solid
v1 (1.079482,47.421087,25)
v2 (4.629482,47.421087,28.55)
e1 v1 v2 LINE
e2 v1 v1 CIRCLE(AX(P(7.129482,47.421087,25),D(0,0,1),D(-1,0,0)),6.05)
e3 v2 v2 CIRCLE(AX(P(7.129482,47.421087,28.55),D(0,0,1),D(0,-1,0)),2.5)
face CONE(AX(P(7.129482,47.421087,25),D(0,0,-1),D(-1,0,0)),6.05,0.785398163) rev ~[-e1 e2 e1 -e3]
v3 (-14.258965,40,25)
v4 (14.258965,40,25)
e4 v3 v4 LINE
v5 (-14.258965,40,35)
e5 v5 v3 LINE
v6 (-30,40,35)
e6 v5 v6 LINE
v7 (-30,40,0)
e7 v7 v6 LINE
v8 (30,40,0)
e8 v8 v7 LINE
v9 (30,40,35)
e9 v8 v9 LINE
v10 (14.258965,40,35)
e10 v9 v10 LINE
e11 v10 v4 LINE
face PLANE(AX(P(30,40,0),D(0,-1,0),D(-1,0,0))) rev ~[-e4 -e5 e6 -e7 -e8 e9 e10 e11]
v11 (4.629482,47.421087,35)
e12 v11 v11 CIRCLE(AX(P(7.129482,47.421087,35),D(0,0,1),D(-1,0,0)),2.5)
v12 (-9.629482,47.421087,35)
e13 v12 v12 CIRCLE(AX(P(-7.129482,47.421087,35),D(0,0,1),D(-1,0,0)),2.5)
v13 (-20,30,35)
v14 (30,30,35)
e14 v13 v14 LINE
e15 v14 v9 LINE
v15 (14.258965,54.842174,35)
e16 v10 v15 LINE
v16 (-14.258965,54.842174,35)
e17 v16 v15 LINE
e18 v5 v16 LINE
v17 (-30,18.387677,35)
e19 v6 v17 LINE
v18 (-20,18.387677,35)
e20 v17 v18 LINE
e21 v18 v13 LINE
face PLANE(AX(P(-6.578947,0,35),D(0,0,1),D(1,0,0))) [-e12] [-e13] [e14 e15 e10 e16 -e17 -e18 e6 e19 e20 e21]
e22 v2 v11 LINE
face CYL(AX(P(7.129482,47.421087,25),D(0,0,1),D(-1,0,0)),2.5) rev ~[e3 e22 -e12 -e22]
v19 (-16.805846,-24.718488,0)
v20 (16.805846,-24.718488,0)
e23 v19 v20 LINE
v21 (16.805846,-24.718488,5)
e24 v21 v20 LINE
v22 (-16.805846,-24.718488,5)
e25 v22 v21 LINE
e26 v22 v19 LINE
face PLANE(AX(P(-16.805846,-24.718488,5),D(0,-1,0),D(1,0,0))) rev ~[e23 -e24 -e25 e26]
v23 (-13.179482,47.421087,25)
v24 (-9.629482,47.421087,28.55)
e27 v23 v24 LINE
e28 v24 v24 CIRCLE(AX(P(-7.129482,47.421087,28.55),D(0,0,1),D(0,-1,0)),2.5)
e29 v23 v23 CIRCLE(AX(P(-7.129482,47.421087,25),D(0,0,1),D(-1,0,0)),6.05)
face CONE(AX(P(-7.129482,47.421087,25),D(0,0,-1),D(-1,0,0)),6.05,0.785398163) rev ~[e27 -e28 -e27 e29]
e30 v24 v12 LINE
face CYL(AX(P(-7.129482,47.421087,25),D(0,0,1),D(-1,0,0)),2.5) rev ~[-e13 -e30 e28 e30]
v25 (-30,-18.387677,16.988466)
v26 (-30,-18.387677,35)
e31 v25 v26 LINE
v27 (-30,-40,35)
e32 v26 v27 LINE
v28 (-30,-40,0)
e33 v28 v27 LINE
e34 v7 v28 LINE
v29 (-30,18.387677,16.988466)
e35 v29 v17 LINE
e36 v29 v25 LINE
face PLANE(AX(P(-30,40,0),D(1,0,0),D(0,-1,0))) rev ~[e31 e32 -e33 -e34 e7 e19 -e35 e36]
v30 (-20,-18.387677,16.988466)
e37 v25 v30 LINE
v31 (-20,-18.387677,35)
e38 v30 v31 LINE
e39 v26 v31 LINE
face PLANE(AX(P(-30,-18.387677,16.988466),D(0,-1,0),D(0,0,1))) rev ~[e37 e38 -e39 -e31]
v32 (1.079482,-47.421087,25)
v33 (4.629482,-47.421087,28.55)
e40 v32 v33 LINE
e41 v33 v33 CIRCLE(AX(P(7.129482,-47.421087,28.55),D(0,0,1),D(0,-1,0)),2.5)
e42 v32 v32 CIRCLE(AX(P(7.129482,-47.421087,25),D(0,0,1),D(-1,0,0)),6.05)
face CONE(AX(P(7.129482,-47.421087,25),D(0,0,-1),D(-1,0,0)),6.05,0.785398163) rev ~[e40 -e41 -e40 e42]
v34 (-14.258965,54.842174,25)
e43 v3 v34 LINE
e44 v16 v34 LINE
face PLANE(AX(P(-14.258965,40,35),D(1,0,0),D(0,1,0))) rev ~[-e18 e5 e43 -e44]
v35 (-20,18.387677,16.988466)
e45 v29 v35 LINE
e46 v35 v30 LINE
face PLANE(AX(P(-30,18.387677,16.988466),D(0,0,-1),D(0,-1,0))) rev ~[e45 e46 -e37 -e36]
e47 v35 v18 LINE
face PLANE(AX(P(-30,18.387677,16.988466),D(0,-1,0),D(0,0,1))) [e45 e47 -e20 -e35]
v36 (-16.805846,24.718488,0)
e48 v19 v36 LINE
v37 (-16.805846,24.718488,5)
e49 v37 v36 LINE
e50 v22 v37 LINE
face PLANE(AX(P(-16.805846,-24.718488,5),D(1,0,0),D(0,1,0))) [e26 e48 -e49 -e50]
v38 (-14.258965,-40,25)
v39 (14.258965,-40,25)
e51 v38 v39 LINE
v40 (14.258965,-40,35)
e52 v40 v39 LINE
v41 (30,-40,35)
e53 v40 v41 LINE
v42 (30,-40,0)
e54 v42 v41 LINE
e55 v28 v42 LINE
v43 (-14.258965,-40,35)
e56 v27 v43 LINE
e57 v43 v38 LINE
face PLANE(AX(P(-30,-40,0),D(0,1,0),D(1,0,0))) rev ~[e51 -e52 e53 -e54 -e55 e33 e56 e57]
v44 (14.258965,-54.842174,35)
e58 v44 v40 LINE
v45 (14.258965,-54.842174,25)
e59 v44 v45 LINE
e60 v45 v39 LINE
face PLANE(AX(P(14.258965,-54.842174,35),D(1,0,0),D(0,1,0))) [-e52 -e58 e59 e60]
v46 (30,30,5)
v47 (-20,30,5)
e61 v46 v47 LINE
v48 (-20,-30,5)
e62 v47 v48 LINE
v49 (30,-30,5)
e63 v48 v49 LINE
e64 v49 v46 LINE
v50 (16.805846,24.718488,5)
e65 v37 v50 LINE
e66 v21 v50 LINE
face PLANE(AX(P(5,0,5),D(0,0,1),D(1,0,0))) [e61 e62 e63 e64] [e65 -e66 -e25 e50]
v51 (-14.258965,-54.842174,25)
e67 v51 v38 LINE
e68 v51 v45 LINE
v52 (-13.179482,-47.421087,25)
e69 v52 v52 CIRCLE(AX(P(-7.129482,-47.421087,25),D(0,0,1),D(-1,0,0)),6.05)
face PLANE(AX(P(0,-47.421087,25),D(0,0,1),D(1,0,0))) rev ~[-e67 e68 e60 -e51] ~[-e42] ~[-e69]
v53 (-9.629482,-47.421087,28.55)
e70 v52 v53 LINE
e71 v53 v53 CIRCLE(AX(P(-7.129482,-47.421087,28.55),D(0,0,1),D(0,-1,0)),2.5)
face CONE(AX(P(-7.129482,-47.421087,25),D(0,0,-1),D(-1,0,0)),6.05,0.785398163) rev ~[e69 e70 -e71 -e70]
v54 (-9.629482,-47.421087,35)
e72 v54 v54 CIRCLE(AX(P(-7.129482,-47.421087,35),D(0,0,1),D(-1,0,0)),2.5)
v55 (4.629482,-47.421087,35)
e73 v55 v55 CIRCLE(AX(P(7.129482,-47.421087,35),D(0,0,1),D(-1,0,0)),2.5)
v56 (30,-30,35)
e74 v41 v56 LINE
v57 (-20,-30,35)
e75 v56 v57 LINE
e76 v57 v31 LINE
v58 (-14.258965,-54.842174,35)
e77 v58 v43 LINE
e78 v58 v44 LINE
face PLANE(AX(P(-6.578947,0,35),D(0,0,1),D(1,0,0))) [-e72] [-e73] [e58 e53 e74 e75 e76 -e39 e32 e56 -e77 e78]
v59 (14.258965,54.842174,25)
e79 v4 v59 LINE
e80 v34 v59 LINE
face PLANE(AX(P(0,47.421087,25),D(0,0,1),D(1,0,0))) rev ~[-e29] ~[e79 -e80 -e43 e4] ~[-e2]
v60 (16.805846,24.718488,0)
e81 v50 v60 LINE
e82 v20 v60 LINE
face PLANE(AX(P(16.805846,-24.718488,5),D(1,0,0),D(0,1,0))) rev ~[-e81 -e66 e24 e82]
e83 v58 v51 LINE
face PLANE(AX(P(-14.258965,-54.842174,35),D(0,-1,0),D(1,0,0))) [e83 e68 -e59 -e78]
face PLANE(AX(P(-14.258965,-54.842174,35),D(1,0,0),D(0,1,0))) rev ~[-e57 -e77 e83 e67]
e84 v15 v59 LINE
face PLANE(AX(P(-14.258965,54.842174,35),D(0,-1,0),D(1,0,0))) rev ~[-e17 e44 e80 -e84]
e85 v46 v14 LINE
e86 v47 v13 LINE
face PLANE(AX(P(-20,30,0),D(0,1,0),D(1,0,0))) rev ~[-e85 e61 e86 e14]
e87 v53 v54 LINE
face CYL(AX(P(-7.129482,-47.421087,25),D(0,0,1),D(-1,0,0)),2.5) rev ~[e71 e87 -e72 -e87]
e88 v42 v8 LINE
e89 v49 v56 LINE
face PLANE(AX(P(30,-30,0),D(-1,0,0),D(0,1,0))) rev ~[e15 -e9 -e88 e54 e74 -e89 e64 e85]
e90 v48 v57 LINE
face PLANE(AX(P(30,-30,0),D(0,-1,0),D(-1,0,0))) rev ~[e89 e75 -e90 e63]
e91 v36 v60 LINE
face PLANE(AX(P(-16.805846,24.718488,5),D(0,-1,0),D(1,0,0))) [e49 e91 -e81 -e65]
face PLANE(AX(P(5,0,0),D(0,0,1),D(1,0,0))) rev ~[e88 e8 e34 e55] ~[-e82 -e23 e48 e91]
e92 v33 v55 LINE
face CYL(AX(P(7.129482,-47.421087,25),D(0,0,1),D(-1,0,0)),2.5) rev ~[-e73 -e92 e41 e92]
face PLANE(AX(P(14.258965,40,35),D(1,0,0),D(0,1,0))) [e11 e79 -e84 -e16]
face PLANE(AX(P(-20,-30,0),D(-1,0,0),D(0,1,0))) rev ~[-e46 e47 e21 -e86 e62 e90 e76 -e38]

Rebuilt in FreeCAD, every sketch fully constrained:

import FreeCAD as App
import Part
import Sketcher
Q = App.Units.Quantity


def add_polygon(sketch, points):
    """Adds a closed chain of lines whose ends are joined by coincident constraints."""
    first, n = sketch.GeometryCount, len(points)
    for a, b in zip(points, points[1:] + points[:1]):
        sketch.addGeometry(Part.LineSegment(App.Vector(*a, 0), App.Vector(*b, 0)), False)
    for i in range(n):
        sketch.addConstraint(Sketcher.Constraint("Coincident", first + i, 2, first + (i + 1) % n, 1))

doc = App.newDocument("Part")
body = doc.addObject("PartDesign::Body", "Body")

sketch1 = body.newObject("Sketcher::SketchObject", "Sketch")
sketch1.AttachmentSupport = (doc.getObject("XY_Plane"), [""])
sketch1.MapMode = "FlatFace"
add_polygon(sketch1, [(-20, 30), (30, 30), (30, 40), (-30, 40), (-30, -40), (30, -40), (30, -30), (-20, -30)])
sketch1.addConstraint([
    Sketcher.Constraint("Horizontal", 0),
    Sketcher.Constraint("Vertical", 1),
    Sketcher.Constraint("Horizontal", 2),
    Sketcher.Constraint("Vertical", 3),
    Sketcher.Constraint("Horizontal", 4),
    Sketcher.Constraint("Vertical", 5),
    Sketcher.Constraint("Horizontal", 6),
    Sketcher.Constraint("Vertical", 7),
    Sketcher.Constraint("Symmetric", 1, 2, 3, 2, -1, 1),
    Sketcher.Constraint("Symmetric", 0, 2, 5, 2, -1),
    Sketcher.Constraint("Equal", 4, 7),
    Sketcher.Constraint("DistanceX", 0, 1, 0, 2, Q("50 mm")),
    Sketcher.Constraint("DistanceX", 2, 2, 2, 1, Q("60 mm")),
    Sketcher.Constraint("DistanceY", 1, 1, 1, 2, Q("10 mm")),
])
pad1 = body.newObject("PartDesign::Pad", "Pad")
pad1.Profile = sketch1
pad1.Length = 35

sketch2 = body.newObject("Sketcher::SketchObject", "Sketch001")
sketch2.AttachmentSupport = (doc.getObject("XY_Plane"), [""])
sketch2.MapMode = "FlatFace"
add_polygon(sketch2, [(30, 30), (-20, 30), (-20, -30), (30, -30)])
sketch2.addConstraint([
    Sketcher.Constraint("Horizontal", 0),
    Sketcher.Constraint("Vertical", 1),
    Sketcher.Constraint("Horizontal", 2),
    Sketcher.Constraint("Vertical", 3),
    Sketcher.Constraint("DistanceX", 0, 2, 0, 1, Q("50 mm")),
    Sketcher.Constraint("DistanceY", 1, 2, 1, 1, Q("60 mm")),
    Sketcher.Constraint("DistanceX", 0, 2, -1, 1, Q("20 mm")),
    Sketcher.Constraint("DistanceY", -1, 1, 0, 2, Q("30 mm")),
])
pad2 = body.newObject("PartDesign::Pad", "Pad001")
pad2.Profile = sketch2
pad2.Length = 5

sketch3 = body.newObject("Sketcher::SketchObject", "Sketch002")
sketch3.AttachmentSupport = (doc.getObject("XY_Plane"), [""])
sketch3.MapMode = "FlatFace"
sketch3.AttachmentOffset = App.Placement(App.Vector(0, 0, 5), App.Rotation())
add_polygon(sketch3, [(-17, 25), (-17, -25), (17, -25), (17, 25)])
sketch3.addConstraint([
    Sketcher.Constraint("Vertical", 0),
    Sketcher.Constraint("Horizontal", 1),
    Sketcher.Constraint("Vertical", 2),
    Sketcher.Constraint("Horizontal", 3),
    Sketcher.Constraint("Symmetric", 0, 2, 2, 2, -1, 1),
    Sketcher.Constraint("DistanceX", 1, 1, 1, 2, Q("33.611692 mm")),
    Sketcher.Constraint("DistanceY", 0, 2, 0, 1, Q("49.436976 mm")),
])
pocket1 = body.newObject("PartDesign::Pocket", "Pocket")
pocket1.Profile = sketch3
pocket1.Length = 25

sketch4 = body.newObject("Sketcher::SketchObject", "Sketch003")
sketch4.AttachmentSupport = (doc.getObject("XY_Plane"), [""])
sketch4.MapMode = "FlatFace"
sketch4.AttachmentOffset = App.Placement(App.Vector(0, 0, 35), App.Rotation())
add_polygon(sketch4, [(-14, -40), (-14, -55), (14, -55), (14, -40)])
add_polygon(sketch4, [(-14, 55), (-14, 40), (14, 40), (14, 55)])
sketch4.addConstraint([
    Sketcher.Constraint("Vertical", 0),
    Sketcher.Constraint("Horizontal", 1),
    Sketcher.Constraint("Vertical", 2),
    Sketcher.Constraint("Horizontal", 3),
    Sketcher.Constraint("Vertical", 4),
    Sketcher.Constraint("Horizontal", 5),
    Sketcher.Constraint("Vertical", 6),
    Sketcher.Constraint("Horizontal", 7),
    Sketcher.Constraint("Symmetric", 2, 2, 4, 2, -1, 1),
    Sketcher.Constraint("Symmetric", 0, 2, 6, 2, -1, 1),
    Sketcher.Constraint("Vertical", 3, 2, 4, 2),
    Sketcher.Constraint("DistanceY", 2, 2, -1, 1, Q("40 mm")),
    Sketcher.Constraint("DistanceX", 1, 1, 1, 2, Q("28.51793 mm")),
    Sketcher.Constraint("DistanceY", 0, 2, 0, 1, Q("14.842174 mm")),
])
pad3 = body.newObject("PartDesign::Pad", "Pad002")
pad3.Profile = sketch4
pad3.Length = 10
pad3.Reversed = True

sketch5 = body.newObject("Sketcher::SketchObject", "Sketch004")
sketch5.AttachmentSupport = (doc.getObject("XY_Plane"), [""])
sketch5.MapMode = "FlatFace"
sketch5.AttachmentOffset = App.Placement(App.Vector(0, 0, 25), App.Rotation())
sketch5.addGeometry([
    Part.Circle(App.Vector(7.1, -47.4, 0), App.Vector(0, 0, 1), 2.5),
    Part.Circle(App.Vector(-7.1, -47.4, 0), App.Vector(0, 0, 1), 2.5),
    Part.Circle(App.Vector(-7.1, 47.4, 0), App.Vector(0, 0, 1), 2.5),
    Part.Circle(App.Vector(7.1, 47.4, 0), App.Vector(0, 0, 1), 2.5),
], False)
sketch5.addConstraint([
    Sketcher.Constraint("Equal", 0, 1),
    Sketcher.Constraint("Equal", 1, 2),
    Sketcher.Constraint("Equal", 2, 3),
    Sketcher.Constraint("Symmetric", 0, 3, 2, 3, -1, 1),
    Sketcher.Constraint("Symmetric", 1, 3, 3, 3, -1, 1),
    Sketcher.Constraint("Symmetric", 0, 3, 1, 3, -2),
    Sketcher.Constraint("Diameter", 0, Q("5 mm")),
    Sketcher.Constraint("DistanceX", -1, 1, 0, 3, Q("7.129482 mm")),
    Sketcher.Constraint("DistanceY", 0, 3, -1, 1, Q("47.421087 mm")),
])
doc.recompute()
hole = body.newObject("PartDesign::Hole", "Hole")
hole.Profile = sketch5
hole.ThreadType = "None"
hole.Diameter = 5
hole.DepthType = "ThroughAll"
hole.HoleCutType = "Countersink"
hole.HoleCutDiameter = 12.1
hole.HoleCutCountersinkAngle = 90
hole.Reversed = True

sketch6 = body.newObject("Sketcher::SketchObject", "Sketch005")
sketch6.AttachmentSupport = (doc.getObject("YZ_Plane"), [""])
sketch6.MapMode = "FlatFace"
sketch6.AttachmentOffset = App.Placement(App.Vector(0, 0, -30), App.Rotation())
add_polygon(sketch6, [(18, 53), (18, 17), (-18, 17), (-18, 53)])
sketch6.addConstraint([
    Sketcher.Constraint("Vertical", 0),
    Sketcher.Constraint("Horizontal", 1),
    Sketcher.Constraint("Vertical", 2),
    Sketcher.Constraint("Horizontal", 3),
    Sketcher.Constraint("DistanceX", 1, 2, 1, 1, Q("36.775354 mm")),
    Sketcher.Constraint("DistanceY", 0, 2, 0, 1, Q("36.023068 mm")),
    Sketcher.Constraint("DistanceX", -1, 1, 0, 2, Q("18.387677 mm")),
    Sketcher.Constraint("DistanceY", -1, 1, 0, 2, Q("16.988466 mm")),
])
pocket2 = body.newObject("PartDesign::Pocket", "Pocket001")
pocket2.Profile = sketch6
pocket2.Length = 25
pocket2.Reversed = True

doc.recompute()
